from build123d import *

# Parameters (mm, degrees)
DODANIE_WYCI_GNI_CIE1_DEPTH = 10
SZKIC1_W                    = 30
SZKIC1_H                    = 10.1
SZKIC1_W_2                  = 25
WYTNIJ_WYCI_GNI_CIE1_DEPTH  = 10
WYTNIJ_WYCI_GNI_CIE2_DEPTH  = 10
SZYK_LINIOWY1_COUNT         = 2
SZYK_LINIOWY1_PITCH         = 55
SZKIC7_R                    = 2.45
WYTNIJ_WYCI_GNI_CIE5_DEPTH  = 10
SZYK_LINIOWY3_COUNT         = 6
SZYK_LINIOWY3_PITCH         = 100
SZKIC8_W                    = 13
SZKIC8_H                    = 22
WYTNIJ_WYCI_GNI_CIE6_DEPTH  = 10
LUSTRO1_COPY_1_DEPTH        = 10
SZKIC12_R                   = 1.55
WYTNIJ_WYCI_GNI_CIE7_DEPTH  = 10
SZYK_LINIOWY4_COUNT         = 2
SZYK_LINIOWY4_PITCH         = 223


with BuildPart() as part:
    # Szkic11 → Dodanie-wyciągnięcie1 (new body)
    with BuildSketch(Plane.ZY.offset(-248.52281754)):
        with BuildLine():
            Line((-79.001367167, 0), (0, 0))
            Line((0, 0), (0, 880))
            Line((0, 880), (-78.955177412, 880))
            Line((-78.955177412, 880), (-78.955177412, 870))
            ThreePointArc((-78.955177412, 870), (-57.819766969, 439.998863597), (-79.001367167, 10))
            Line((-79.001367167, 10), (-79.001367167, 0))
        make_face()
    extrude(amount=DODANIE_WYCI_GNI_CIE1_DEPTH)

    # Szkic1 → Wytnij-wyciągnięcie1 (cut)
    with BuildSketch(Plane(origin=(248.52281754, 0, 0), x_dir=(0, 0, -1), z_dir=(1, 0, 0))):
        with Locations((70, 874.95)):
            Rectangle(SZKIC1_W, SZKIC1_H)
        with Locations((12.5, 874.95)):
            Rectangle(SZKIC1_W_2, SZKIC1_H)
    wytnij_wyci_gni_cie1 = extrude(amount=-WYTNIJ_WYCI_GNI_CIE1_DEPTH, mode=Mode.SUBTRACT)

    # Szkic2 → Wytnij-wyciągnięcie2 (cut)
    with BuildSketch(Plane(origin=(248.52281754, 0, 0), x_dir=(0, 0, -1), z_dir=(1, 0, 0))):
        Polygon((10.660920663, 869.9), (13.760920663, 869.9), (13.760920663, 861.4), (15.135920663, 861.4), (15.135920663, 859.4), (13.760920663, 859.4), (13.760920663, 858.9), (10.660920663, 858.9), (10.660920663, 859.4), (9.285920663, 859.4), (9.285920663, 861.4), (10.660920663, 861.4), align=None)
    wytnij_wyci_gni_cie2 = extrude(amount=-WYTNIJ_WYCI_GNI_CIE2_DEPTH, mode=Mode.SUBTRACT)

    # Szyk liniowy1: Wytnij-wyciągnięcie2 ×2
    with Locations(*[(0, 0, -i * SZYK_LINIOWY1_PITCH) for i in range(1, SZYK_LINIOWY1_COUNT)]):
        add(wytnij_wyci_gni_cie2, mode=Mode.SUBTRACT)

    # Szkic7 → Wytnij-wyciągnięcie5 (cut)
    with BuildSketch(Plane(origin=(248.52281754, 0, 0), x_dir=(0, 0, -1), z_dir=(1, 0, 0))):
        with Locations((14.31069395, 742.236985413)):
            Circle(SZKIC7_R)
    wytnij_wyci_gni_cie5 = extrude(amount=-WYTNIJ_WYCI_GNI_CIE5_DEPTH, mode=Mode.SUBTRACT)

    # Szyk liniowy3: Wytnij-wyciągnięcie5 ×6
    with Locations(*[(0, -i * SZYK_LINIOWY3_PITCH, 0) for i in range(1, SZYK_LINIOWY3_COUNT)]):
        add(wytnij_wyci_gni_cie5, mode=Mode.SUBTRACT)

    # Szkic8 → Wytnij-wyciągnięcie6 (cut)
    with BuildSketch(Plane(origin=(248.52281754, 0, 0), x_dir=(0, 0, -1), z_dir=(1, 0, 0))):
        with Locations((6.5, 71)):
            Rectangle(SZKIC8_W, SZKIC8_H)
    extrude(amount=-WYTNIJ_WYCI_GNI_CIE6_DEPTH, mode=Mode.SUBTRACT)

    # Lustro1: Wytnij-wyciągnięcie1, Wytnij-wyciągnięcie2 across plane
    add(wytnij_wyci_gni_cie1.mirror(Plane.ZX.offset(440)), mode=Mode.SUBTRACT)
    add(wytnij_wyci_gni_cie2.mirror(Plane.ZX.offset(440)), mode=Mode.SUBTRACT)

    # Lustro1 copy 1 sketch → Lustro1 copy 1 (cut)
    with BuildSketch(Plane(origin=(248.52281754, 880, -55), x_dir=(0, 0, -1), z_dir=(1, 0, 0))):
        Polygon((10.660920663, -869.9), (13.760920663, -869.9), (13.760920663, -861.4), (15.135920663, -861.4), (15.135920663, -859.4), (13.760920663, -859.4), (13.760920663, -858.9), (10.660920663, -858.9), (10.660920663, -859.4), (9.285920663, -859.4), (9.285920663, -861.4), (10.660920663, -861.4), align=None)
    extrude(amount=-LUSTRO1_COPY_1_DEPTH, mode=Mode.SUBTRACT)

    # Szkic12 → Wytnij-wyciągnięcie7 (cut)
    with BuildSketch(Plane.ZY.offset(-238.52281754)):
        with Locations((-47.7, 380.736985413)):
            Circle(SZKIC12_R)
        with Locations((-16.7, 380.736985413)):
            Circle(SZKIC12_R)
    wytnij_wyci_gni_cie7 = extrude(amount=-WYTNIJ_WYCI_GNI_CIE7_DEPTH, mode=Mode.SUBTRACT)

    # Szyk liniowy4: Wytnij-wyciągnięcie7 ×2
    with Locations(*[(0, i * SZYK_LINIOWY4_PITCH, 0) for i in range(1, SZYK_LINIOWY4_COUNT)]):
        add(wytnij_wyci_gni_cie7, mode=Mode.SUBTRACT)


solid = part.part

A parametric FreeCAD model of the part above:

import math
import FreeCAD as App
import Part
import Sketcher

V = App.Vector
Q = App.Units.Quantity

doc = App.newDocument("Part")
body = doc.addObject("PartDesign::Body", "Body")

# Sketch on YZ plane
sketch1 = body.newObject("Sketcher::SketchObject", "Sketch")
sketch1.AttachmentSupport = (doc.getObject("YZ_Plane"), [""])
sketch1.MapMode = "FlatFace"
sketch1.AttachmentOffset = App.Placement(V(0, 0, 248.522818), App.Rotation())
sketch1.addGeometry([
    Part.LineSegment(V(0, -79, 0), V(0, 0, 0)),  # 0
    Part.LineSegment(V(0, 0, 0), V(880, 0, 0)),  # 1
    Part.LineSegment(V(880, 0, 0), V(880, -79, 0)),  # 2
    Part.LineSegment(V(880, -79, 0), V(870, -79, 0)),  # 3
    Part.ArcOfCircle(Part.Circle(V(440, -4438, 0), V(0, 0, 1), 4380), math.radians(84.37), math.radians(95.64)),  # 4
    Part.LineSegment(V(10, -79, 0), V(0, -79, 0)),  # 5
], False)
sketch1.addConstraint([
    Sketcher.Constraint("Coincident", 0, 2, 1, 1),
    Sketcher.Constraint("Coincident", 1, 2, 2, 1),
    Sketcher.Constraint("Coincident", 2, 2, 3, 1),
    Sketcher.Constraint("Coincident", 3, 2, 4, 1),
    Sketcher.Constraint("Coincident", 4, 2, 5, 1),
    Sketcher.Constraint("Coincident", 5, 2, 0, 1),
    Sketcher.Constraint("Vertical", 0),
    Sketcher.Constraint("Horizontal", 1),
    Sketcher.Constraint("Vertical", 2),
    Sketcher.Constraint("Horizontal", 3),
    Sketcher.Constraint("Horizontal", 5),
    Sketcher.Constraint("Coincident", 0, 2, -1, 1),
    Sketcher.Constraint("Equal", 3, 5),
    Sketcher.Constraint("DistanceX", 1, 1, 1, 2, Q("880 mm")),
    Sketcher.Constraint("DistanceX", 3, 2, 3, 1, Q("10 mm")),
    Sketcher.Constraint("Radius", 4, Q("4379.980528 mm")),
    Sketcher.Constraint("DistanceY", 0, 1, 0, 2, Q("79.001367 mm")),
    Sketcher.Constraint("DistanceY", 2, 2, 2, 1, Q("78.955177 mm")),
])
pad1 = body.newObject("PartDesign::Pad", "Pad")
pad1.Profile = sketch1
pad1.Length = 10
pad1.Reversed = True

# Sketch on YZ plane
sketch2 = body.newObject("Sketcher::SketchObject", "Sketch001")
sketch2.AttachmentSupport = (doc.getObject("YZ_Plane"), [""])
sketch2.MapMode = "FlatFace"
sketch2.AttachmentOffset = App.Placement(V(0, 0, 248.522818), App.Rotation())
sketch2.addGeometry([
    Part.LineSegment(V(880, -55, 0), V(870, -55, 0)),  # 0
    Part.LineSegment(V(870, -55, 0), V(870, -85, 0)),  # 1
    Part.LineSegment(V(870, -85, 0), V(880, -85, 0)),  # 2
    Part.LineSegment(V(880, -85, 0), V(880, -55, 0)),  # 3
    Part.LineSegment(V(880, 0, 0), V(870, 0, 0)),  # 4
    Part.LineSegment(V(870, 0, 0), V(870, -25, 0)),  # 5
    Part.LineSegment(V(870, -25, 0), V(880, -25, 0)),  # 6
    Part.LineSegment(V(880, -25, 0), V(880, 0, 0)),  # 7
], False)
sketch2.addConstraint([
    Sketcher.Constraint("Coincident", 0, 2, 1, 1),
    Sketcher.Constraint("Coincident", 1, 2, 2, 1),
    Sketcher.Constraint("Coincident", 2, 2, 3, 1),
    Sketcher.Constraint("Coincident", 3, 2, 0, 1),
    Sketcher.Constraint("Coincident", 4, 2, 5, 1),
    Sketcher.Constraint("Coincident", 5, 2, 6, 1),
    Sketcher.Constraint("Coincident", 6, 2, 7, 1),
    Sketcher.Constraint("Coincident", 7, 2, 4, 1),
    Sketcher.Constraint("Horizontal", 0),
    Sketcher.Constraint("Vertical", 1),
    Sketcher.Constraint("Horizontal", 2),
    Sketcher.Constraint("Vertical", 3),
    Sketcher.Constraint("Horizontal", 4),
    Sketcher.Constraint("Vertical", 5),
    Sketcher.Constraint("Horizontal", 6),
    Sketcher.Constraint("Vertical", 7),
    Sketcher.Constraint("PointOnObject", 4, 2, -1),
    Sketcher.Constraint("Vertical", 1, 2, 4, 2),
    Sketcher.Constraint("Vertical", 3, 2, 6, 2),
    Sketcher.Constraint("DistanceY", 1, 2, 1, 1, Q("30 mm")),
    Sketcher.Constraint("DistanceY", 5, 2, 5, 1, Q("25 mm")),
    Sketcher.Constraint("DistanceX", 0, 2, 0, 1, Q("10.1 mm")),
    Sketcher.Constraint("DistanceY", 0, 2, -1, 1, Q("55 mm")),
    Sketcher.Constraint("DistanceX", -1, 1, 2, 2, Q("880 mm")),
])
pocket1 = body.newObject("PartDesign::Pocket", "Pocket")
pocket1.Profile = sketch2
pocket1.Length = 10

# Sketch on YZ plane
sketch3 = body.newObject("Sketcher::SketchObject", "Sketch002")
sketch3.AttachmentSupport = (doc.getObject("YZ_Plane"), [""])
sketch3.MapMode = "FlatFace"
sketch3.AttachmentOffset = App.Placement(V(0, 0, 248.522818), App.Rotation())
sketch3.addGeometry([
    Part.LineSegment(V(869.9, -13.8, 0), V(869.9, -10.7, 0)),  # 0
    Part.LineSegment(V(869.9, -10.7, 0), V(861.4, -10.7, 0)),  # 1
    Part.LineSegment(V(861.4, -10.7, 0), V(861.4, -9.3, 0)),  # 2
    Part.LineSegment(V(861.4, -9.3, 0), V(859.4, -9.3, 0)),  # 3
    Part.LineSegment(V(859.4, -9.3, 0), V(859.4, -10.7, 0)),  # 4
    Part.LineSegment(V(859.4, -10.7, 0), V(858.9, -10.7, 0)),  # 5
    Part.LineSegment(V(858.9, -10.7, 0), V(858.9, -13.8, 0)),  # 6
    Part.LineSegment(V(858.9, -13.8, 0), V(859.4, -13.8, 0)),  # 7
    Part.LineSegment(V(859.4, -13.8, 0), V(859.4, -15.1, 0)),  # 8
    Part.LineSegment(V(859.4, -15.1, 0), V(861.4, -15.1, 0)),  # 9
    Part.LineSegment(V(861.4, -15.1, 0), V(861.4, -13.8, 0)),  # 10
    Part.LineSegment(V(861.4, -13.8, 0), V(869.9, -13.8, 0)),  # 11
], False)
sketch3.addConstraint([
    Sketcher.Constraint("Coincident", 0, 2, 1, 1),
    Sketcher.Constraint("Coincident", 1, 2, 2, 1),
    Sketcher.Constraint("Coincident", 2, 2, 3, 1),
    Sketcher.Constraint("Coincident", 3, 2, 4, 1),
    Sketcher.Constraint("Coincident", 4, 2, 5, 1),
    Sketcher.Constraint("Coincident", 5, 2, 6, 1),
    Sketcher.Constraint("Coincident", 6, 2, 7, 1),
    Sketcher.Constraint("Coincident", 7, 2, 8, 1),
    Sketcher.Constraint("Coincident", 8, 2, 9, 1),
    Sketcher.Constraint("Coincident", 9, 2, 10, 1),
    Sketcher.Constraint("Coincident", 10, 2, 11, 1),
    Sketcher.Constraint("Coincident", 11, 2, 0, 1),
    Sketcher.Constraint("Vertical", 0),
    Sketcher.Constraint("Horizontal", 1),
    Sketcher.Constraint("Vertical", 2),
    Sketcher.Constraint("Horizontal", 3),
    Sketcher.Constraint("Vertical", 4),
    Sketcher.Constraint("Horizontal", 5),
    Sketcher.Constraint("Vertical", 6),
    Sketcher.Constraint("Horizontal", 7),
    Sketcher.Constraint("Vertical", 8),
    Sketcher.Constraint("Horizontal", 9),
    Sketcher.Constraint("Vertical", 10),
    Sketcher.Constraint("Horizontal", 11),
    Sketcher.Constraint("Horizontal", 1, 2, 4, 2),
    Sketcher.Constraint("Horizontal", 7, 2, 10, 2),
    Sketcher.Constraint("Vertical", 4, 2, 7, 2),
    Sketcher.Constraint("Vertical", 2, 2, 9, 2),
    Sketcher.Constraint("Equal", 4, 8),
    Sketcher.Constraint("DistanceX", 3, 2, 3, 1, Q("2 mm")),
    Sketcher.Constraint("DistanceX", 1, 2, 1, 1, Q("8.5 mm")),
    Sketcher.Constraint("DistanceX", 5, 2, 5, 1, Q("0.5 mm")),
    Sketcher.Constraint("DistanceY", 0, 1, 0, 2, Q("3.1 mm")),
    Sketcher.Constraint("DistanceX", -1, 1, 0, 2, Q("869.9 mm")),
    Sketcher.Constraint("DistanceY", 2, 1, 2, 2, Q("1.375 mm")),
    Sketcher.Constraint("DistanceY", 0, 2, -1, 1, Q("10.660921 mm")),
])
pocket2 = body.newObject("PartDesign::Pocket", "Pocket001")
pocket2.Profile = sketch3
pocket2.Length = 10
doc.recompute()

linearpattern = body.newObject("PartDesign::LinearPattern", "LinearPattern")
linearpattern.Originals = [pocket2]
linearpattern.Direction = (doc.getObject("Z_Axis"), [""])
linearpattern.Mode = "offset"
linearpattern.Offset = 55
linearpattern.Occurrences = 2
linearpattern.Reversed = True
body.Tip = linearpattern

# Sketch on YZ plane
sketch4 = body.newObject("Sketcher::SketchObject", "Sketch003")
sketch4.AttachmentSupport = (doc.getObject("YZ_Plane"), [""])
sketch4.MapMode = "FlatFace"
sketch4.AttachmentOffset = App.Placement(V(0, 0, 248.522818), App.Rotation())
sketch4.addGeometry(Part.Circle(V(742.2, -14.3, 0), V(0, 0, 1), 2.5), False)
sketch4.addConstraint([
    Sketcher.Constraint("Diameter", 0, Q("4.9 mm")),
    Sketcher.Constraint("DistanceX", -1, 1, 0, 3, Q("742.236985 mm")),
    Sketcher.Constraint("DistanceY", 0, 3, -1, 1, Q("14.310694 mm")),
])
pocket3 = body.newObject("PartDesign::Pocket", "Pocket002")
pocket3.Profile = sketch4
pocket3.Length = 10
doc.recompute()

linearpattern2 = body.newObject("PartDesign::LinearPattern", "LinearPattern001")
linearpattern2.Originals = [pocket3]
linearpattern2.Direction = (doc.getObject("Y_Axis"), [""])
linearpattern2.Mode = "offset"
linearpattern2.Offset = 100
linearpattern2.Occurrences = 6
linearpattern2.Reversed = True
body.Tip = linearpattern2

# Sketch on YZ plane
sketch5 = body.newObject("Sketcher::SketchObject", "Sketch004")
sketch5.AttachmentSupport = (doc.getObject("YZ_Plane"), [""])
sketch5.MapMode = "FlatFace"
sketch5.AttachmentOffset = App.Placement(V(0, 0, 248.522818), App.Rotation())
sketch5.addGeometry([
    Part.LineSegment(V(82, 0, 0), V(60, 0, 0)),
    Part.LineSegment(V(60, 0, 0), V(60, -13, 0)),
    Part.LineSegment(V(60, -13, 0), V(82, -13, 0)),
    Part.LineSegment(V(82, -13, 0), V(82, 0, 0)),
], False)
sketch5.addConstraint([
    Sketcher.Constraint("Coincident", 0, 2, 1, 1),
    Sketcher.Constraint("Coincident", 1, 2, 2, 1),
    Sketcher.Constraint("Coincident", 2, 2, 3, 1),
    Sketcher.Constraint("Coincident", 3, 2, 0, 1),
    Sketcher.Constraint("Horizontal", 0),
    Sketcher.Constraint("Vertical", 1),
    Sketcher.Constraint("Horizontal", 2),
    Sketcher.Constraint("Vertical", 3),
    Sketcher.Constraint("PointOnObject", 0, 2, -1),
    Sketcher.Constraint("DistanceX", 0, 2, 0, 1, Q("22 mm")),
    Sketcher.Constraint("DistanceY", 1, 2, 1, 1, Q("13 mm")),
    Sketcher.Constraint("DistanceX", -1, 1, 0, 2, Q("60 mm")),
])
pocket4 = body.newObject("PartDesign::Pocket", "Pocket003")
pocket4.Profile = sketch5
pocket4.Length = 10
doc.recompute()

datumplane = body.newObject("PartDesign::Plane", "DatumPlane")
datumplane.AttachmentSupport = (doc.getObject("XZ_Plane"), [""])
datumplane.MapMode = "FlatFace"
datumplane.AttachmentOffset = App.Placement(V(0, 0, -440), App.Rotation())
mirrored = body.newObject("PartDesign::Mirrored", "Mirrored")
mirrored.Originals = [pocket1, pocket2]
mirrored.MirrorPlane = (datumplane, [""])
body.Tip = mirrored

# Sketch on YZ plane
sketch6 = body.newObject("Sketcher::SketchObject", "Sketch005")
sketch6.AttachmentSupport = (doc.getObject("YZ_Plane"), [""])
sketch6.MapMode = "FlatFace"
sketch6.AttachmentOffset = App.Placement(V(0, 0, 248.522818), App.Rotation())
sketch6.addGeometry([
    Part.LineSegment(V(10.1, -65.7, 0), V(10.1, -68.8, 0)),  # 0
    Part.LineSegment(V(10.1, -68.8, 0), V(18.6, -68.8, 0)),  # 1
    Part.LineSegment(V(18.6, -68.8, 0), V(18.6, -70.1, 0)),  # 2
    Part.LineSegment(V(18.6, -70.1, 0), V(20.6, -70.1, 0)),  # 3
    Part.LineSegment(V(20.6, -70.1, 0), V(20.6, -68.8, 0)),  # 4
    Part.LineSegment(V(20.6, -68.8, 0), V(21.1, -68.8, 0)),  # 5
    Part.LineSegment(V(21.1, -68.8, 0), V(21.1, -65.7, 0)),  # 6
    Part.LineSegment(V(21.1, -65.7, 0), V(20.6, -65.7, 0)),  # 7
    Part.LineSegment(V(20.6, -65.7, 0), V(20.6, -64.3, 0)),  # 8
    Part.LineSegment(V(20.6, -64.3, 0), V(18.6, -64.3, 0)),  # 9
    Part.LineSegment(V(18.6, -64.3, 0), V(18.6, -65.7, 0)),  # 10
    Part.LineSegment(V(18.6, -65.7, 0), V(10.1, -65.7, 0)),  # 11
], False)
sketch6.addConstraint([
    Sketcher.Constraint("Coincident", 0, 2, 1, 1),
    Sketcher.Constraint("Coincident", 1, 2, 2, 1),
    Sketcher.Constraint("Coincident", 2, 2, 3, 1),
    Sketcher.Constraint("Coincident", 3, 2, 4, 1),
    Sketcher.Constraint("Coincident", 4, 2, 5, 1),
    Sketcher.Constraint("Coincident", 5, 2, 6, 1),
    Sketcher.Constraint("Coincident", 6, 2, 7, 1),
    Sketcher.Constraint("Coincident", 7, 2, 8, 1),
    Sketcher.Constraint("Coincident", 8, 2, 9, 1),
    Sketcher.Constraint("Coincident", 9, 2, 10, 1),
    Sketcher.Constraint("Coincident", 10, 2, 11, 1),
    Sketcher.Constraint("Coincident", 11, 2, 0, 1),
    Sketcher.Constraint("Vertical", 0),
    Sketcher.Constraint("Horizontal", 1),
    Sketcher.Constraint("Vertical", 2),
    Sketcher.Constraint("Horizontal", 3),
    Sketcher.Constraint("Vertical", 4),
    Sketcher.Constraint("Horizontal", 5),
    Sketcher.Constraint("Vertical", 6),
    Sketcher.Constraint("Horizontal", 7),
    Sketcher.Constraint("Vertical", 8),
    Sketcher.Constraint("Horizontal", 9),
    Sketcher.Constraint("Vertical", 10),
    Sketcher.Constraint("Horizontal", 11),
    Sketcher.Constraint("Horizontal", 1, 2, 4, 2),
    Sketcher.Constraint("Horizontal", 7, 2, 10, 2),
    Sketcher.Constraint("Vertical", 4, 2, 7, 2),
    Sketcher.Constraint("Vertical", 2, 2, 9, 2),
    Sketcher.Constraint("Equal", 4, 8),
    Sketcher.Constraint("DistanceX", 3, 1, 3, 2, Q("2 mm")),
    Sketcher.Constraint("DistanceX", 1, 1, 1, 2, Q("8.5 mm")),
    Sketcher.Constraint("DistanceX", 5, 1, 5, 2, Q("0.5 mm")),
    Sketcher.Constraint("DistanceY", 0, 2, 0, 1, Q("3.1 mm")),
    Sketcher.Constraint("DistanceX", -1, 1, 0, 2, Q("10.1 mm")),
    Sketcher.Constraint("DistanceY", 2, 2, 2, 1, Q("1.375 mm")),
    Sketcher.Constraint("DistanceY", 0, 2, -1, 1, Q("68.760921 mm")),
])
pocket5 = body.newObject("PartDesign::Pocket", "Pocket004")
pocket5.Profile = sketch6
pocket5.Length = 10

# Sketch on YZ plane
sketch7 = body.newObject("Sketcher::SketchObject", "Sketch006")
sketch7.AttachmentSupport = (doc.getObject("YZ_Plane"), [""])
sketch7.MapMode = "FlatFace"
sketch7.AttachmentOffset = App.Placement(V(0, 0, 238.522818), App.Rotation())
sketch7.addGeometry([
    Part.Circle(V(380.7, -47.7, 0), V(0, 0, 1), 1.6),
    Part.Circle(V(380.7, -16.7, 0), V(0, 0, 1), 1.6),
], False)
sketch7.addConstraint([
    Sketcher.Constraint("Equal", 0, 1),
    Sketcher.Constraint("Vertical", 0, 3, 1, 3),
    Sketcher.Constraint("Diameter", 0, Q("3.1 mm")),
    Sketcher.Constraint("DistanceY", 0, 3, 1, 3, Q("31 mm")),
    Sketcher.Constraint("DistanceY", 0, 3, -1, 1, Q("47.7 mm")),
    Sketcher.Constraint("DistanceX", -1, 1, 0, 3, Q("380.736985 mm")),
])
pocket6 = body.newObject("PartDesign::Pocket", "Pocket005")
pocket6.Profile = sketch7
pocket6.Length = 10
pocket6.Reversed = True
doc.recompute()

linearpattern3 = body.newObject("PartDesign::LinearPattern", "LinearPattern002")
linearpattern3.Originals = [pocket6]
linearpattern3.Direction = (doc.getObject("Y_Axis"), [""])
linearpattern3.Mode = "offset"
linearpattern3.Offset = 223
linearpattern3.Occurrences = 2
body.Tip = linearpattern3

doc.recompute()
